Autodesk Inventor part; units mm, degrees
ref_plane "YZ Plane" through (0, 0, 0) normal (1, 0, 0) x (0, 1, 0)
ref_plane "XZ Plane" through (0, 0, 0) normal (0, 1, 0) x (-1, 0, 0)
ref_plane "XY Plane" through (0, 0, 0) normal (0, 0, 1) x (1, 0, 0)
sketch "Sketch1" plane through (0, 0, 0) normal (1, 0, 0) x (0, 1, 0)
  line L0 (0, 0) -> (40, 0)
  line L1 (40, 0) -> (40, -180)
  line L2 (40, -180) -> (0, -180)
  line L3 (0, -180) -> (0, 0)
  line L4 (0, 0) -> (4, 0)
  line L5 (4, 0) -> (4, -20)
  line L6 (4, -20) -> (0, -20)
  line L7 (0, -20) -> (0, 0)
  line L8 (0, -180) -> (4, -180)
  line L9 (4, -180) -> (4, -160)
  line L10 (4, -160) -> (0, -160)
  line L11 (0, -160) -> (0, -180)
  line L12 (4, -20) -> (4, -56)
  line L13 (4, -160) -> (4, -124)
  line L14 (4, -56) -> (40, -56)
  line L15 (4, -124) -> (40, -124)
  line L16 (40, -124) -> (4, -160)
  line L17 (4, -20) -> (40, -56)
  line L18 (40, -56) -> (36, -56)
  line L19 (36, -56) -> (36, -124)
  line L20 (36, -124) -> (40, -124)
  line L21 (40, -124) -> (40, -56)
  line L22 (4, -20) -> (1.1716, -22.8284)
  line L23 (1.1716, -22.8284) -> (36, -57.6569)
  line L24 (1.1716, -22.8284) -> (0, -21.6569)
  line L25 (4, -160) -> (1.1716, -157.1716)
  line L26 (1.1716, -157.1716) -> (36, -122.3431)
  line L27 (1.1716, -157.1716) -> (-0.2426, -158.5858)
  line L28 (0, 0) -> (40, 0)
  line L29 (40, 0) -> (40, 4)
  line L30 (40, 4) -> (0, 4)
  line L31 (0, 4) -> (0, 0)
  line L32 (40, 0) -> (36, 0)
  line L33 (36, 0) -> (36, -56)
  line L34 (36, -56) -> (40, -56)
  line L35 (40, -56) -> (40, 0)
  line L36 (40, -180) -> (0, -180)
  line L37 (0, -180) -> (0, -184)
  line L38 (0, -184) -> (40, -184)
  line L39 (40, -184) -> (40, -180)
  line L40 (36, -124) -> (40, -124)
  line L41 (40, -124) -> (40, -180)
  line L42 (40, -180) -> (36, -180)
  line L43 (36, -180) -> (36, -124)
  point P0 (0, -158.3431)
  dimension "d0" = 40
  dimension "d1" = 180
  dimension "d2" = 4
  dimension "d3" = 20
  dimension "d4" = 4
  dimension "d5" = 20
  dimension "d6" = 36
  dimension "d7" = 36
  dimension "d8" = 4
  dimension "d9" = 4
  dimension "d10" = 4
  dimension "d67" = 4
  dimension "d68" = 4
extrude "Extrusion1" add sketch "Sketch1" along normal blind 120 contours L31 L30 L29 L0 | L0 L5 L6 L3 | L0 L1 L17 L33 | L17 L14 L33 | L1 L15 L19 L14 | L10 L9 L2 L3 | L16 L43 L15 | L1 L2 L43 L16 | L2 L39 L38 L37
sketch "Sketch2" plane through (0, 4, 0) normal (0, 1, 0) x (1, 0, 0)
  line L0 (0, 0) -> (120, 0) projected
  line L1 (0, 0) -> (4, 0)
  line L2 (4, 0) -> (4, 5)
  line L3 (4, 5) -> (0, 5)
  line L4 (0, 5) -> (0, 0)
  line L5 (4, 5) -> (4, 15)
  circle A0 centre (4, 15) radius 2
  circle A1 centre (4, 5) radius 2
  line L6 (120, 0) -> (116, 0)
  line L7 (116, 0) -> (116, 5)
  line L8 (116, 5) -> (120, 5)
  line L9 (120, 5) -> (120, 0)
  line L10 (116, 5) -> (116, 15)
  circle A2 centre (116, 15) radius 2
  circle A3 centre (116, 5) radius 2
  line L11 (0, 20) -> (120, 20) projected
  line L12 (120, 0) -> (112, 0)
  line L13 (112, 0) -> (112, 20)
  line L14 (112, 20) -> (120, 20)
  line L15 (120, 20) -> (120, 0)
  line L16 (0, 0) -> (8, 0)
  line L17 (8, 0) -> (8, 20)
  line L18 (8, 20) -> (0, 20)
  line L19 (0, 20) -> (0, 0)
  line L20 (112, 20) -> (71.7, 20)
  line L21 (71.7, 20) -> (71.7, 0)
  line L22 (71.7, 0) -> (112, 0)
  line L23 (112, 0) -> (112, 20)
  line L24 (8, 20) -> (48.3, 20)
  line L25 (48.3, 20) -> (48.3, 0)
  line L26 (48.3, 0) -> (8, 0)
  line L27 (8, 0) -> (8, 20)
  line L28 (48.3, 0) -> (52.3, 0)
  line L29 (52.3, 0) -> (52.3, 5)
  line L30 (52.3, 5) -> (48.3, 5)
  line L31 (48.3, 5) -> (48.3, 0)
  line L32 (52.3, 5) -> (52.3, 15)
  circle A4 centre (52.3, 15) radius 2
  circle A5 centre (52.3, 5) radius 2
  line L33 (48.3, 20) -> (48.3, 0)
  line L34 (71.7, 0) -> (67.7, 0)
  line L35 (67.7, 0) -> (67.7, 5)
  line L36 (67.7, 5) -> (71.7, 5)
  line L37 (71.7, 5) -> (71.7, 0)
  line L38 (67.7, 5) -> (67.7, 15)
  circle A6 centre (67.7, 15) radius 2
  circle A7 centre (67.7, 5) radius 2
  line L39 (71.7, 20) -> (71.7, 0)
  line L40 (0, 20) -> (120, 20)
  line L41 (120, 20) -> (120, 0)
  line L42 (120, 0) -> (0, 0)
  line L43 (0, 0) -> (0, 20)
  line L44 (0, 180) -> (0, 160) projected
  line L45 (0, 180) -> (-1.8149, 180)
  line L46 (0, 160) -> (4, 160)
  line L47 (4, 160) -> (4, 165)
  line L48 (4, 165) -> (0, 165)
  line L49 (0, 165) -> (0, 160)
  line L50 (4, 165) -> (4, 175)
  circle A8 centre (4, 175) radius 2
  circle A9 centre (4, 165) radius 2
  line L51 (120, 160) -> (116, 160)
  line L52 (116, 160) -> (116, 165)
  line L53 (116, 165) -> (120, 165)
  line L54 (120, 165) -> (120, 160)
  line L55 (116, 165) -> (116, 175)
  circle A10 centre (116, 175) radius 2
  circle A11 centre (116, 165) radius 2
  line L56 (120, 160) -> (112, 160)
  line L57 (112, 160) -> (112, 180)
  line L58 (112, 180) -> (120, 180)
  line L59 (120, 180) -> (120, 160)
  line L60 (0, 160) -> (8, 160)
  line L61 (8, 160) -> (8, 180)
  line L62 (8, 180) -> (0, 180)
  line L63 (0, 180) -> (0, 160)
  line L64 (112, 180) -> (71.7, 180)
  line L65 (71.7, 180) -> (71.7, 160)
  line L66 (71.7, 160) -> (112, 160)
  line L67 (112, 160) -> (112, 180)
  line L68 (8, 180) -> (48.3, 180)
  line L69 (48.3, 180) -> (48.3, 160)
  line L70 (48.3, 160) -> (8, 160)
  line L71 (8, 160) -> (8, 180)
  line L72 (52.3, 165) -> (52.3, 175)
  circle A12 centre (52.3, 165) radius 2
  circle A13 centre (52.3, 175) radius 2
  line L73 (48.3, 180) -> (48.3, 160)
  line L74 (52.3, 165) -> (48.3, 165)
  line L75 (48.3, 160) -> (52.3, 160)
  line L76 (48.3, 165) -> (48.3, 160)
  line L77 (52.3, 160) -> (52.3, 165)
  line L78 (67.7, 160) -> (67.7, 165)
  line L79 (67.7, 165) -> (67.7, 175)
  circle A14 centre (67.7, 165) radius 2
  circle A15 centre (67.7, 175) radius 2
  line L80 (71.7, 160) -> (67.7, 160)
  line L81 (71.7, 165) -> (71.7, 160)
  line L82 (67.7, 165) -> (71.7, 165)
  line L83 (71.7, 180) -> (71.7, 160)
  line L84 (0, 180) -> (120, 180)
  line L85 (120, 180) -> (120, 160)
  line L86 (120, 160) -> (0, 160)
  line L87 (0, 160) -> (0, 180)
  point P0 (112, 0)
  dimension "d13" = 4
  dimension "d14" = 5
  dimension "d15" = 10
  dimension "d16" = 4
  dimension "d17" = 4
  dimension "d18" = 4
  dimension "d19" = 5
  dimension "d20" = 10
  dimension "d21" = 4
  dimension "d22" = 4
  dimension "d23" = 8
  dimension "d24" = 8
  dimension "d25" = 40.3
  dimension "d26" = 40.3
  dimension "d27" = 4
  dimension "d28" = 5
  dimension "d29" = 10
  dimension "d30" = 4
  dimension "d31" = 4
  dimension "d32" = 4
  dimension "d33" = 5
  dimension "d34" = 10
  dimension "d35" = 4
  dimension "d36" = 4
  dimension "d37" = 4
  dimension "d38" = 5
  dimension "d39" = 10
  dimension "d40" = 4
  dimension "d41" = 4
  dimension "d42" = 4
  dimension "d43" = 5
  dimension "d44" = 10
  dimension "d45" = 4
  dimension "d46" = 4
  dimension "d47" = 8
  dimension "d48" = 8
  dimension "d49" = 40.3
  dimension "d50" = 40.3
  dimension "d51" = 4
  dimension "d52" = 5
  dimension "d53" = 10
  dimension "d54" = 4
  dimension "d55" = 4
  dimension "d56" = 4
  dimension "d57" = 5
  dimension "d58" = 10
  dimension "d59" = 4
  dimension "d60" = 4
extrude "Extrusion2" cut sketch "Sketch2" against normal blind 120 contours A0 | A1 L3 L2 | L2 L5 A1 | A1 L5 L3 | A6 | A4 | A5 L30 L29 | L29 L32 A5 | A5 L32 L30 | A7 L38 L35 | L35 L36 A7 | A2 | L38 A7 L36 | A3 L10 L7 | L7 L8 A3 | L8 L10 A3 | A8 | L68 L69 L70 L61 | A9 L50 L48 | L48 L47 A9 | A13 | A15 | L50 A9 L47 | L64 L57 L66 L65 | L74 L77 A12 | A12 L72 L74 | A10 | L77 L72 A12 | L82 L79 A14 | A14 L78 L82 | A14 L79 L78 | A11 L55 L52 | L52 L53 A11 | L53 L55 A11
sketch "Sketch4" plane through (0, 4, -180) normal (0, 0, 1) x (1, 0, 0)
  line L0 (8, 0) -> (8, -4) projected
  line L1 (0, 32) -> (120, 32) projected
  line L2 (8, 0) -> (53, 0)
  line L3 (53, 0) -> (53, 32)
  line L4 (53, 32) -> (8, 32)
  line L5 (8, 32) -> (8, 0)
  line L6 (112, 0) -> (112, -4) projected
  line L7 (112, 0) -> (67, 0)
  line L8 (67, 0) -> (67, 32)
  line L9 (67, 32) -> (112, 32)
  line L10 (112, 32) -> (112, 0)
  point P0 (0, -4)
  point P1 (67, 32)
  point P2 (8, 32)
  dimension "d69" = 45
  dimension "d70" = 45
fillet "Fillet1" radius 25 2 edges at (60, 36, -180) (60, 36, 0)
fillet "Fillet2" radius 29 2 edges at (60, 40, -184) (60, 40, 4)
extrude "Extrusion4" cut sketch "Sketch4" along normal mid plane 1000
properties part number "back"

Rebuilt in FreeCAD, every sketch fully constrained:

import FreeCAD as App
import Part
import Sketcher
Q = App.Units.Quantity


def edges_at(feature, points):
    """Names of the edges that pass closest to the given points."""
    edges = feature.Shape.Edges
    near = lambda p: min(range(len(edges)), key=lambda i: edges[i].distToShape(Part.Vertex(*p))[0])
    return sorted({f"Edge{near(p) + 1}" for p in points})

doc = App.newDocument("Part")
body = doc.addObject("PartDesign::Body", "Body")

# Sketch on YZ plane
sketch1 = doc.addObject("Sketcher::SketchObject", "Sketch")
body.addObject(sketch1)
sketch1.AttachmentSupport = (doc.YZ_Plane, [""])
sketch1.MapMode = "FlatFace"
sketch1.addGeometry(Part.LineSegment(App.Vector(0, 4, 0), App.Vector(0, -20, 0)), False)
sketch1.addGeometry(Part.LineSegment(App.Vector(0, -20, 0), App.Vector(4, -20, 0)), False)
sketch1.addGeometry(Part.LineSegment(App.Vector(4, -20, 0), App.Vector(4, 0, 0)), False)
sketch1.addGeometry(Part.LineSegment(App.Vector(4, 0, 0), App.Vector(36, 0, 0)), False)
sketch1.addGeometry(Part.LineSegment(App.Vector(36, 0, 0), App.Vector(36, -180, 0)), False)
sketch1.addGeometry(Part.LineSegment(App.Vector(36, -180, 0), App.Vector(4, -180, 0)), False)
sketch1.addGeometry(Part.LineSegment(App.Vector(4, -180, 0), App.Vector(4, -160, 0)), False)
sketch1.addGeometry(Part.LineSegment(App.Vector(4, -160, 0), App.Vector(0, -160, 0)), False)
sketch1.addGeometry(Part.LineSegment(App.Vector(0, -160, 0), App.Vector(0, -184, 0)), False)
sketch1.addGeometry(Part.LineSegment(App.Vector(0, -184, 0), App.Vector(40, -184, 0)), False)
sketch1.addGeometry(Part.LineSegment(App.Vector(40, -184, 0), App.Vector(40, 4, 0)), False)
sketch1.addGeometry(Part.LineSegment(App.Vector(40, 4, 0), App.Vector(0, 4, 0)), False)
sketch1.addConstraint(Sketcher.Constraint("Coincident", 0, 2, 1, 1))
sketch1.addConstraint(Sketcher.Constraint("Coincident", 1, 2, 2, 1))
sketch1.addConstraint(Sketcher.Constraint("Coincident", 2, 2, 3, 1))
sketch1.addConstraint(Sketcher.Constraint("Coincident", 3, 2, 4, 1))
sketch1.addConstraint(Sketcher.Constraint("Coincident", 4, 2, 5, 1))
sketch1.addConstraint(Sketcher.Constraint("Coincident", 5, 2, 6, 1))
sketch1.addConstraint(Sketcher.Constraint("Coincident", 6, 2, 7, 1))
sketch1.addConstraint(Sketcher.Constraint("Coincident", 7, 2, 8, 1))
sketch1.addConstraint(Sketcher.Constraint("Coincident", 8, 2, 9, 1))
sketch1.addConstraint(Sketcher.Constraint("Coincident", 9, 2, 10, 1))
sketch1.addConstraint(Sketcher.Constraint("Coincident", 10, 2, 11, 1))
sketch1.addConstraint(Sketcher.Constraint("Coincident", 11, 2, 0, 1))
sketch1.addConstraint(Sketcher.Constraint("Vertical", 0))
sketch1.addConstraint(Sketcher.Constraint("Horizontal", 1))
sketch1.addConstraint(Sketcher.Constraint("Vertical", 2))
sketch1.addConstraint(Sketcher.Constraint("Horizontal", 3))
sketch1.addConstraint(Sketcher.Constraint("Vertical", 4))
sketch1.addConstraint(Sketcher.Constraint("Horizontal", 5))
sketch1.addConstraint(Sketcher.Constraint("Vertical", 6))
sketch1.addConstraint(Sketcher.Constraint("Horizontal", 7))
sketch1.addConstraint(Sketcher.Constraint("Vertical", 8))
sketch1.addConstraint(Sketcher.Constraint("Horizontal", 9))
sketch1.addConstraint(Sketcher.Constraint("Vertical", 10))
sketch1.addConstraint(Sketcher.Constraint("Horizontal", 11))
sketch1.addConstraint(Sketcher.Constraint("PointOnObject", 0, 2, -2))
sketch1.addConstraint(Sketcher.Constraint("PointOnObject", 2, 2, -1))
sketch1.addConstraint(Sketcher.Constraint("PointOnObject", 7, 2, -2))
sketch1.addConstraint(Sketcher.Constraint("Vertical", 2, 2, 5, 2))
sketch1.addConstraint(Sketcher.Constraint("Equal", 2, 6))
sketch1.addConstraint(Sketcher.Constraint("Equal", 0, 8))
sketch1.addConstraint(Sketcher.Constraint("DistanceX", 1, 1, 1, 2, Q("4 mm")))
sketch1.addConstraint(Sketcher.Constraint("DistanceX", 9, 1, 9, 2, Q("40 mm")))
sketch1.addConstraint(Sketcher.Constraint("DistanceY", 2, 1, 2, 2, Q("20 mm")))
sketch1.addConstraint(Sketcher.Constraint("DistanceY", 4, 2, 4, 1, Q("180 mm")))
sketch1.addConstraint(Sketcher.Constraint("DistanceX", -1, 1, 3, 2, Q("36 mm")))
sketch1.addConstraint(Sketcher.Constraint("DistanceY", -1, 1, 10, 2, Q("4 mm")))
pad1 = doc.addObject("PartDesign::Pad", "Pad")
body.addObject(pad1)
pad1.Profile = sketch1
pad1.Length = 120

# Sketch on XZ plane
sketch2 = doc.addObject("Sketcher::SketchObject", "Sketch001")
body.addObject(sketch2)
sketch2.AttachmentSupport = (doc.XZ_Plane, [""])
sketch2.MapMode = "FlatFace"
sketch2.AttachmentOffset = App.Placement(App.Vector(0, 0, -4), App.Rotation())
sketch2.addGeometry(Part.Circle(App.Vector(4, -15, 0), App.Vector(0, 0, 1), 2), False)
sketch2.addGeometry(Part.Circle(App.Vector(4, -5, 0), App.Vector(0, 0, 1), 2), False)
sketch2.addGeometry(Part.Circle(App.Vector(67.7, -15, 0), App.Vector(0, 0, 1), 2), False)
sketch2.addGeometry(Part.Circle(App.Vector(52.3, -15, 0), App.Vector(0, 0, 1), 2), False)
sketch2.addGeometry(Part.Circle(App.Vector(52.3, -5, 0), App.Vector(0, 0, 1), 2), False)
sketch2.addGeometry(Part.Circle(App.Vector(67.7, -5, 0), App.Vector(0, 0, 1), 2), False)
sketch2.addGeometry(Part.Circle(App.Vector(116, -15, 0), App.Vector(0, 0, 1), 2), False)
sketch2.addGeometry(Part.Circle(App.Vector(116, -5, 0), App.Vector(0, 0, 1), 2), False)
sketch2.addGeometry(Part.Circle(App.Vector(4, -175, 0), App.Vector(0, 0, 1), 2), False)
sketch2.addGeometry(Part.LineSegment(App.Vector(48.3, -180, 0), App.Vector(8, -180, 0)), False)
sketch2.addGeometry(Part.LineSegment(App.Vector(8, -180, 0), App.Vector(8, -160, 0)), False)
sketch2.addGeometry(Part.LineSegment(App.Vector(8, -160, 0), App.Vector(48.3, -160, 0)), False)
sketch2.addGeometry(Part.LineSegment(App.Vector(48.3, -160, 0), App.Vector(48.3, -180, 0)), False)
sketch2.addGeometry(Part.Circle(App.Vector(4, -165, 0), App.Vector(0, 0, 1), 2), False)
sketch2.addGeometry(Part.Circle(App.Vector(52.3, -175, 0), App.Vector(0, 0, 1), 2), False)
sketch2.addGeometry(Part.Circle(App.Vector(67.7, -175, 0), App.Vector(0, 0, 1), 2), False)
sketch2.addGeometry(Part.LineSegment(App.Vector(112, -180, 0), App.Vector(71.7, -180, 0)), False)
sketch2.addGeometry(Part.LineSegment(App.Vector(71.7, -180, 0), App.Vector(71.7, -160, 0)), False)
sketch2.addGeometry(Part.LineSegment(App.Vector(71.7, -160, 0), App.Vector(112, -160, 0)), False)
sketch2.addGeometry(Part.LineSegment(App.Vector(112, -160, 0), App.Vector(112, -180, 0)), False)
sketch2.addGeometry(Part.Circle(App.Vector(52.3, -165, 0), App.Vector(0, 0, 1), 2), False)
sketch2.addGeometry(Part.Circle(App.Vector(116, -175, 0), App.Vector(0, 0, 1), 2), False)
sketch2.addGeometry(Part.Circle(App.Vector(67.7, -165, 0), App.Vector(0, 0, 1), 2), False)
sketch2.addGeometry(Part.Circle(App.Vector(116, -165, 0), App.Vector(0, 0, 1), 2), False)
sketch2.addConstraint(Sketcher.Constraint("Coincident", 9, 2, 10, 1))
sketch2.addConstraint(Sketcher.Constraint("Coincident", 10, 2, 11, 1))
sketch2.addConstraint(Sketcher.Constraint("Coincident", 11, 2, 12, 1))
sketch2.addConstraint(Sketcher.Constraint("Coincident", 12, 2, 9, 1))
sketch2.addConstraint(Sketcher.Constraint("Coincident", 16, 2, 17, 1))
sketch2.addConstraint(Sketcher.Constraint("Coincident", 17, 2, 18, 1))
sketch2.addConstraint(Sketcher.Constraint("Coincident", 18, 2, 19, 1))
sketch2.addConstraint(Sketcher.Constraint("Coincident", 19, 2, 16, 1))
sketch2.addConstraint(Sketcher.Constraint("Horizontal", 9))
sketch2.addConstraint(Sketcher.Constraint("Vertical", 10))
sketch2.addConstraint(Sketcher.Constraint("Horizontal", 11))
sketch2.addConstraint(Sketcher.Constraint("Vertical", 12))
sketch2.addConstraint(Sketcher.Constraint("Horizontal", 16))
sketch2.addConstraint(Sketcher.Constraint("Vertical", 17))
sketch2.addConstraint(Sketcher.Constraint("Horizontal", 18))
sketch2.addConstraint(Sketcher.Constraint("Vertical", 19))
sketch2.addConstraint(Sketcher.Constraint("Equal", 0, 1))
sketch2.addConstraint(Sketcher.Constraint("Equal", 1, 2))
sketch2.addConstraint(Sketcher.Constraint("Equal", 2, 3))
sketch2.addConstraint(Sketcher.Constraint("Equal", 3, 4))
sketch2.addConstraint(Sketcher.Constraint("Equal", 4, 5))
sketch2.addConstraint(Sketcher.Constraint("Equal", 5, 6))
sketch2.addConstraint(Sketcher.Constraint("Equal", 6, 7))
sketch2.addConstraint(Sketcher.Constraint("Equal", 7, 8))
sketch2.addConstraint(Sketcher.Constraint("Equal", 8, 13))
sketch2.addConstraint(Sketcher.Constraint("Equal", 13, 14))
sketch2.addConstraint(Sketcher.Constraint("Equal", 14, 15))
sketch2.addConstraint(Sketcher.Constraint("Equal", 15, 20))
sketch2.addConstraint(Sketcher.Constraint("Equal", 20, 21))
sketch2.addConstraint(Sketcher.Constraint("Equal", 21, 22))
sketch2.addConstraint(Sketcher.Constraint("Equal", 22, 23))
sketch2.addConstraint(Sketcher.Constraint("Horizontal", 0, 3, 2, 3))
sketch2.addConstraint(Sketcher.Constraint("Horizontal", 2, 3, 3, 3))
sketch2.addConstraint(Sketcher.Constraint("Horizontal", 1, 3, 4, 3))
sketch2.addConstraint(Sketcher.Constraint("Horizontal", 4, 3, 5, 3))
sketch2.addConstraint(Sketcher.Constraint("Horizontal", 3, 3, 6, 3))
sketch2.addConstraint(Sketcher.Constraint("Horizontal", 5, 3, 7, 3))
sketch2.addConstraint(Sketcher.Constraint("Horizontal", 8, 3, 14, 3))
sketch2.addConstraint(Sketcher.Constraint("Horizontal", 14, 3, 15, 3))
sketch2.addConstraint(Sketcher.Constraint("Horizontal", 13, 3, 20, 3))
sketch2.addConstraint(Sketcher.Constraint("Horizontal", 15, 3, 21, 3))
sketch2.addConstraint(Sketcher.Constraint("Horizontal", 20, 3, 22, 3))
sketch2.addConstraint(Sketcher.Constraint("Horizontal", 22, 3, 23, 3))
sketch2.addConstraint(Sketcher.Constraint("Horizontal", 12, 2, 16, 2))
sketch2.addConstraint(Sketcher.Constraint("Horizontal", 11, 2, 17, 2))
sketch2.addConstraint(Sketcher.Constraint("Vertical", 0, 3, 1, 3))
sketch2.addConstraint(Sketcher.Constraint("Vertical", 3, 3, 4, 3))
sketch2.addConstraint(Sketcher.Constraint("Vertical", 2, 3, 5, 3))
sketch2.addConstraint(Sketcher.Constraint("Vertical", 6, 3, 7, 3))
sketch2.addConstraint(Sketcher.Constraint("Vertical", 1, 3, 8, 3))
sketch2.addConstraint(Sketcher.Constraint("Vertical", 8, 3, 13, 3))
sketch2.addConstraint(Sketcher.Constraint("Vertical", 4, 3, 14, 3))
sketch2.addConstraint(Sketcher.Constraint("Vertical", 5, 3, 15, 3))
sketch2.addConstraint(Sketcher.Constraint("Vertical", 14, 3, 20, 3))
sketch2.addConstraint(Sketcher.Constraint("Vertical", 7, 3, 21, 3))
sketch2.addConstraint(Sketcher.Constraint("Vertical", 15, 3, 22, 3))
sketch2.addConstraint(Sketcher.Constraint("Vertical", 21, 3, 23, 3))
sketch2.addConstraint(Sketcher.Constraint("Equal", 11, 16))
sketch2.addConstraint(Sketcher.Constraint("Diameter", 0, Q("4 mm")))
sketch2.addConstraint(Sketcher.Constraint("DistanceX", 9, 2, 9, 1, Q("40.3 mm")))
sketch2.addConstraint(Sketcher.Constraint("DistanceX", -1, 1, 0, 3, Q("4 mm")))
sketch2.addConstraint(Sketcher.Constraint("DistanceY", 1, 3, -1, 1, Q("5 mm")))
sketch2.addConstraint(Sketcher.Constraint("DistanceX", -1, 1, 9, 2, Q("8 mm")))
sketch2.addConstraint(Sketcher.Constraint("DistanceY", 0, 3, 1, 3, Q("10 mm")))
sketch2.addConstraint(Sketcher.Constraint("DistanceY", 8, 3, 13, 3, Q("10 mm")))
sketch2.addConstraint(Sketcher.Constraint("DistanceY", 9, 2, 8, 3, Q("5 mm")))
sketch2.addConstraint(Sketcher.Constraint("DistanceY", 13, 3, 10, 2, Q("5 mm")))
sketch2.addConstraint(Sketcher.Constraint("DistanceX", 11, 2, 20, 3, Q("4 mm")))
sketch2.addConstraint(Sketcher.Constraint("DistanceX", 15, 3, 16, 2, Q("4 mm")))
sketch2.addConstraint(Sketcher.Constraint("DistanceX", 18, 2, 23, 3, Q("4 mm")))
sketch2.addConstraint(Sketcher.Constraint("DistanceX", -1, 1, 6, 3, Q("116 mm")))
sketch2.addConstraint(Sketcher.Constraint("DistanceY", 8, 3, -1, 1, Q("175 mm")))
pocket1 = doc.addObject("PartDesign::Pocket", "Pocket")
body.addObject(pocket1)
pocket1.Profile = sketch2
pocket1.Length = 120
pocket1.Reversed = True
doc.recompute()

fillet = doc.addObject("PartDesign::Fillet", "Fillet")
body.addObject(fillet)
fillet.Base = (pocket1, edges_at(pocket1, [(60, 36, -180), (60, 36, 0)]))
fillet.Radius = 25
doc.recompute()

fillet2 = doc.addObject("PartDesign::Fillet", "Fillet001")
body.addObject(fillet2)
fillet2.Base = (fillet, edges_at(fillet, [(60, 40, -184), (60, 40, 4)]))
fillet2.Radius = 29

# Sketch on XY plane
sketch3 = doc.addObject("Sketcher::SketchObject", "Sketch002")
body.addObject(sketch3)
sketch3.AttachmentSupport = (doc.XY_Plane, [""])
sketch3.MapMode = "FlatFace"
sketch3.AttachmentOffset = App.Placement(App.Vector(0, 0, -180), App.Rotation())
sketch3.addGeometry(Part.LineSegment(App.Vector(112, 36, 0), App.Vector(67, 36, 0)), False)
sketch3.addGeometry(Part.LineSegment(App.Vector(67, 36, 0), App.Vector(67, 4, 0)), False)
sketch3.addGeometry(Part.LineSegment(App.Vector(67, 4, 0), App.Vector(112, 4, 0)), False)
sketch3.addGeometry(Part.LineSegment(App.Vector(112, 4, 0), App.Vector(112, 36, 0)), False)
sketch3.addGeometry(Part.LineSegment(App.Vector(53, 36, 0), App.Vector(8, 36, 0)), False)
sketch3.addGeometry(Part.LineSegment(App.Vector(8, 36, 0), App.Vector(8, 4, 0)), False)
sketch3.addGeometry(Part.LineSegment(App.Vector(8, 4, 0), App.Vector(53, 4, 0)), False)
sketch3.addGeometry(Part.LineSegment(App.Vector(53, 4, 0), App.Vector(53, 36, 0)), False)
sketch3.addConstraint(Sketcher.Constraint("Coincident", 0, 2, 1, 1))
sketch3.addConstraint(Sketcher.Constraint("Coincident", 1, 2, 2, 1))
sketch3.addConstraint(Sketcher.Constraint("Coincident", 2, 2, 3, 1))
sketch3.addConstraint(Sketcher.Constraint("Coincident", 3, 2, 0, 1))
sketch3.addConstraint(Sketcher.Constraint("Coincident", 4, 2, 5, 1))
sketch3.addConstraint(Sketcher.Constraint("Coincident", 5, 2, 6, 1))
sketch3.addConstraint(Sketcher.Constraint("Coincident", 6, 2, 7, 1))
sketch3.addConstraint(Sketcher.Constraint("Coincident", 7, 2, 4, 1))
sketch3.addConstraint(Sketcher.Constraint("Horizontal", 0))
sketch3.addConstraint(Sketcher.Constraint("Vertical", 1))
sketch3.addConstraint(Sketcher.Constraint("Horizontal", 2))
sketch3.addConstraint(Sketcher.Constraint("Vertical", 3))
sketch3.addConstraint(Sketcher.Constraint("Horizontal", 4))
sketch3.addConstraint(Sketcher.Constraint("Vertical", 5))
sketch3.addConstraint(Sketcher.Constraint("Horizontal", 6))
sketch3.addConstraint(Sketcher.Constraint("Vertical", 7))
sketch3.addConstraint(Sketcher.Constraint("Horizontal", 3, 2, 4, 2))
sketch3.addConstraint(Sketcher.Constraint("Horizontal", 2, 2, 5, 2))
sketch3.addConstraint(Sketcher.Constraint("Equal", 2, 4))
sketch3.addConstraint(Sketcher.Constraint("DistanceX", 0, 2, 0, 1, Q("45 mm")))
sketch3.addConstraint(Sketcher.Constraint("DistanceY", 1, 2, 1, 1, Q("32 mm")))
sketch3.addConstraint(Sketcher.Constraint("DistanceX", -1, 1, 0, 2, Q("67 mm")))
sketch3.addConstraint(Sketcher.Constraint("DistanceY", -1, 1, 0, 2, Q("36 mm")))
sketch3.addConstraint(Sketcher.Constraint("DistanceX", -1, 1, 4, 2, Q("8 mm")))
pocket2 = doc.addObject("PartDesign::Pocket", "Pocket001")
body.addObject(pocket2)
pocket2.Profile = sketch3
pocket2.Length = 1000
pocket2.Midplane = True

doc.recompute()
